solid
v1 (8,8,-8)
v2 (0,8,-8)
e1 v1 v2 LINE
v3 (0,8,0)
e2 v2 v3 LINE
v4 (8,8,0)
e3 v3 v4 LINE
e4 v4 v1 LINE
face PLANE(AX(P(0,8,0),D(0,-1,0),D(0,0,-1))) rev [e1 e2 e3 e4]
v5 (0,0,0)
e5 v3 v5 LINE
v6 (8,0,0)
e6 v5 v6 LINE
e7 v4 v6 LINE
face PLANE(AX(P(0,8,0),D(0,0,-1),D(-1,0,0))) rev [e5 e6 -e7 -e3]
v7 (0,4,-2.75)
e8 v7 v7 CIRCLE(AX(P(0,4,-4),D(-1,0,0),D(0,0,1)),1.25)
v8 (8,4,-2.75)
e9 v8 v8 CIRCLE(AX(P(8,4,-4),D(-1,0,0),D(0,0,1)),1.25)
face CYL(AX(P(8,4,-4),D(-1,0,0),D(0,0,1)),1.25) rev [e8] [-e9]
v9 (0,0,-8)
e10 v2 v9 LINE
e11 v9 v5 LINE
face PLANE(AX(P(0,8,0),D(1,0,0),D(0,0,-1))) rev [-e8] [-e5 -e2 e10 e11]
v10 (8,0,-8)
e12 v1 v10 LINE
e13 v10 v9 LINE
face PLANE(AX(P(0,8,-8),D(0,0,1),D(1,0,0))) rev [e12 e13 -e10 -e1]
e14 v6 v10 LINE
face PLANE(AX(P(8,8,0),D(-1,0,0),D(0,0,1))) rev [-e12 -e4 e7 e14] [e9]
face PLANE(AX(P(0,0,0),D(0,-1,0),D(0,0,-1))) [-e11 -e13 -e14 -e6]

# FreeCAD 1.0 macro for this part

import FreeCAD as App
import Part
import Sketcher
from FreeCAD import Vector

doc = App.newDocument("Part")
body = doc.addObject("PartDesign::Body", "Body")

# Sketch on XZ plane
sketch1 = doc.addObject("Sketcher::SketchObject", "Sketch")
body.addObject(sketch1)
sketch1.AttachmentSupport = (doc.XZ_Plane, [""])
sketch1.MapMode = "FlatFace"
sketch1.addGeometry([
    Part.LineSegment(Vector(0, -8, 0), Vector(0, 0, 0)),
    Part.LineSegment(Vector(0, 0, 0), Vector(8, 0, 0)),
    Part.LineSegment(Vector(8, 0, 0), Vector(8, -8, 0)),
    Part.LineSegment(Vector(8, -8, 0), Vector(0, -8, 0)),
], False)
sketch1.addConstraint([
    Sketcher.Constraint("Coincident", 0, 2, 1, 1),
    Sketcher.Constraint("Coincident", 1, 2, 2, 1),
    Sketcher.Constraint("Coincident", 2, 2, 3, 1),
    Sketcher.Constraint("Coincident", 3, 2, 0, 1),
    Sketcher.Constraint("Vertical", 0),
    Sketcher.Constraint("Horizontal", 1),
    Sketcher.Constraint("Vertical", 2),
    Sketcher.Constraint("Horizontal", 3),
    Sketcher.Constraint("Coincident", 0, 2, -1, 1),
    Sketcher.Constraint("Equal", 3, 0),
    Sketcher.Constraint("DistanceX", 1, 1, 1, 2, 8.0),
])
pad1 = doc.addObject("PartDesign::Pad", "Pad")
body.addObject(pad1)
pad1.Profile = sketch1
pad1.Length = 8
pad1.Reversed = True

# Sketch on YZ plane
sketch2 = doc.addObject("Sketcher::SketchObject", "Sketch001")
body.addObject(sketch2)
sketch2.AttachmentSupport = (doc.YZ_Plane, [""])
sketch2.MapMode = "FlatFace"
sketch2.addGeometry(Part.Circle(Vector(4, -4, 0), Vector(0, 0, 1), 1.2), False)
sketch2.addConstraint([
    Sketcher.Constraint("Diameter", 0, 2.5),
    Sketcher.Constraint("DistanceX", -1, 1, 0, 3, 4.0),
    Sketcher.Constraint("DistanceY", 0, 3, -1, 1, 4.0),
])
pocket1 = doc.addObject("PartDesign::Pocket", "Pocket")
body.addObject(pocket1)
pocket1.Profile = sketch2
pocket1.Length = 8
pocket1.Reversed = True

doc.recompute()
